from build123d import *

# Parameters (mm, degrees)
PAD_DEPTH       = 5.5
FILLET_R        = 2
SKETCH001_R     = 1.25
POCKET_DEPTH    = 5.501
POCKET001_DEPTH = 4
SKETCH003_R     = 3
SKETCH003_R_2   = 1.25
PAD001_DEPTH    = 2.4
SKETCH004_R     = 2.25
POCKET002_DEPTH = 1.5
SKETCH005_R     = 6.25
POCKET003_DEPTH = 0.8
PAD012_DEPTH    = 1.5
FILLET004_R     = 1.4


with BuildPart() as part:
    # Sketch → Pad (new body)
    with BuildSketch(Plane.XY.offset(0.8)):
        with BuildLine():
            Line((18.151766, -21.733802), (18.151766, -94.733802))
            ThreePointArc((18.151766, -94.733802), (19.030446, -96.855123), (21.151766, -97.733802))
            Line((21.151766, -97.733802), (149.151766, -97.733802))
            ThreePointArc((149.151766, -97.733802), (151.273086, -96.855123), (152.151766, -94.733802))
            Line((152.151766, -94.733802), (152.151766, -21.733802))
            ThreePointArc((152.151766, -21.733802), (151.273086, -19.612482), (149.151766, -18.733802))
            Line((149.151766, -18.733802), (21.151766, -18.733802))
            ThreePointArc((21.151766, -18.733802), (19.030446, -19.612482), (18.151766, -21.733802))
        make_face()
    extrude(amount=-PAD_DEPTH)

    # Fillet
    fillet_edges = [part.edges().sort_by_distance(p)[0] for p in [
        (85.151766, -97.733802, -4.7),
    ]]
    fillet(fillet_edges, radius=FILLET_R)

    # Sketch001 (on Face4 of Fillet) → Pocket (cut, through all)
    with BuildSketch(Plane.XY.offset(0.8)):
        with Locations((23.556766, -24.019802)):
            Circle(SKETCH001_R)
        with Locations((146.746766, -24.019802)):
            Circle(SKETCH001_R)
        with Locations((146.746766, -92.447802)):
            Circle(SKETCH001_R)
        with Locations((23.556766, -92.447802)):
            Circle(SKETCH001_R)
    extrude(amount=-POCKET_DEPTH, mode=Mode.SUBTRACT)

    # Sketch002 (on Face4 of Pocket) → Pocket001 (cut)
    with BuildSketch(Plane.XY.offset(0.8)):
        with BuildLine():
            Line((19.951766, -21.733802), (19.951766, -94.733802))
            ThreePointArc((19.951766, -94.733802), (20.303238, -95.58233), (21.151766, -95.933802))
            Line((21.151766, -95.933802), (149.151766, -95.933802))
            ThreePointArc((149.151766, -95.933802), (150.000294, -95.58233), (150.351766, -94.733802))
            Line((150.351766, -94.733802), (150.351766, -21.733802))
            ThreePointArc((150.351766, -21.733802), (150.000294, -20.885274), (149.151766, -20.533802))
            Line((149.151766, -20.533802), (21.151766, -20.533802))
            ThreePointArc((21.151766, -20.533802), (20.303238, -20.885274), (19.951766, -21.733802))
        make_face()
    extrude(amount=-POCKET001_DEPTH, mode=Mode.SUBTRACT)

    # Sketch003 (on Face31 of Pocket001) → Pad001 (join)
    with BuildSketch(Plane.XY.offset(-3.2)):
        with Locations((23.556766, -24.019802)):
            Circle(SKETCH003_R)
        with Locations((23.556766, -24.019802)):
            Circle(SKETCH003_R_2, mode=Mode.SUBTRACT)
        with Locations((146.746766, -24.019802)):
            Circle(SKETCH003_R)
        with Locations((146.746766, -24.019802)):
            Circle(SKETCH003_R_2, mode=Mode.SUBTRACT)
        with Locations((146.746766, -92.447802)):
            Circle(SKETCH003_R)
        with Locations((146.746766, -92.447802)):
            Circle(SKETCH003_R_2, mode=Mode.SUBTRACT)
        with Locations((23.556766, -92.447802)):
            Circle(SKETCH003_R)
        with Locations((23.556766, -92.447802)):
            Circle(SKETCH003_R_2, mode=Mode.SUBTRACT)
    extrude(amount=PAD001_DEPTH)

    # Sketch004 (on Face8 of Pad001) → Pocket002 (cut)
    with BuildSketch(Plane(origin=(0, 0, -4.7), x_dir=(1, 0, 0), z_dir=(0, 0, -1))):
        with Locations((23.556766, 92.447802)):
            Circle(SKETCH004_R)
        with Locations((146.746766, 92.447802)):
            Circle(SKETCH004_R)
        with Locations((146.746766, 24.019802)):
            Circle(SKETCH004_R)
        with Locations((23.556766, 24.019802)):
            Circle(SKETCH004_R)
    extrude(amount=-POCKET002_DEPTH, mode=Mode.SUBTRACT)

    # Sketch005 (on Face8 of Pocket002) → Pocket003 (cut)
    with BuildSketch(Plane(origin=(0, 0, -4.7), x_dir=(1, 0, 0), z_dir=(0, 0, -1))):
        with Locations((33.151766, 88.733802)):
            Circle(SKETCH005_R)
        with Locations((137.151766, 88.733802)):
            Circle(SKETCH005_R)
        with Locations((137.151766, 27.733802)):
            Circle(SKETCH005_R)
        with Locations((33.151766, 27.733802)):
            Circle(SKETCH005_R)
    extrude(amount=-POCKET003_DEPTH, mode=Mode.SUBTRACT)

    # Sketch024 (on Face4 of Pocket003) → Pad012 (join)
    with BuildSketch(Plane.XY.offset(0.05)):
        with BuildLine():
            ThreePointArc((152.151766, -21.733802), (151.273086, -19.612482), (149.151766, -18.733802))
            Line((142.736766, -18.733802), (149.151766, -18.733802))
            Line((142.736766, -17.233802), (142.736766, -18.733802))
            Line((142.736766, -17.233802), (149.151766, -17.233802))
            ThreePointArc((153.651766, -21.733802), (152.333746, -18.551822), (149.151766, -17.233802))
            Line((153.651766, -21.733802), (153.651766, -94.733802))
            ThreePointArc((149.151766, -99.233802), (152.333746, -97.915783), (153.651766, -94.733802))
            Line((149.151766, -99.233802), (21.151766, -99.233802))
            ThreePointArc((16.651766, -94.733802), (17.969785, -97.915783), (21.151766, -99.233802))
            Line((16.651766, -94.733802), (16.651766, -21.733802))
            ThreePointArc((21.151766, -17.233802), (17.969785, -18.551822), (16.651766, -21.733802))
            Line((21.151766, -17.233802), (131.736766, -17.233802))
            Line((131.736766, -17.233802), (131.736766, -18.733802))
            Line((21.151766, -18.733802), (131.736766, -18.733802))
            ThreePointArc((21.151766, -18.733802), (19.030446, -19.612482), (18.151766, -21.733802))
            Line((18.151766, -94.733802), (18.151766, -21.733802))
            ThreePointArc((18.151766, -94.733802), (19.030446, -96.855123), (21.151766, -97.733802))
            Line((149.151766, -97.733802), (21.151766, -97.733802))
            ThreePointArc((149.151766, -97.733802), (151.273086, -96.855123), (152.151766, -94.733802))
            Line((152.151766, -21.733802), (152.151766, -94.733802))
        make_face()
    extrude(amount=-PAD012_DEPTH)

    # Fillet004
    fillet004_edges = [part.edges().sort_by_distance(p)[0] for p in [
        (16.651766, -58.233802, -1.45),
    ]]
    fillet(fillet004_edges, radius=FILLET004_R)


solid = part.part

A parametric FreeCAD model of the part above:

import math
import FreeCAD as App
import Part
import Sketcher


def edges_at(feature, points):
    """Names of the edges that pass closest to the given points."""
    edges = feature.Shape.Edges
    near = lambda p: min(range(len(edges)), key=lambda i: edges[i].distToShape(Part.Vertex(*p))[0])
    return sorted({f"Edge{near(p) + 1}" for p in points})

doc = App.newDocument("Part")
body = doc.addObject("PartDesign::Body", "Body")

# Sketch on XY plane
sketch1 = body.newObject("Sketcher::SketchObject", "Sketch")
sketch1.AttachmentSupport = (doc.getObject("XY_Plane"), [""])
sketch1.MapMode = "FlatFace"
sketch1.AttachmentOffset = App.Placement(App.Vector(0, 0, 0.8), App.Rotation())
sketch1.addGeometry([
    Part.LineSegment(App.Vector(18.2, -21.7, 0), App.Vector(18.2, -94.7, 0)),  # 0
    Part.ArcOfCircle(Part.Circle(App.Vector(21.2, -94.7, 0), App.Vector(0, 0, 1), 3), math.radians(180), math.radians(270)),  # 1
    Part.LineSegment(App.Vector(21.2, -97.7, 0), App.Vector(149.2, -97.7, 0)),  # 2
    Part.ArcOfCircle(Part.Circle(App.Vector(149.2, -94.7, 0), App.Vector(0, 0, 1), 3), math.radians(-90), math.radians(0)),  # 3
    Part.LineSegment(App.Vector(152.2, -94.7, 0), App.Vector(152.2, -21.7, 0)),  # 4
    Part.ArcOfCircle(Part.Circle(App.Vector(149.2, -21.7, 0), App.Vector(0, 0, 1), 3), math.radians(0), math.radians(90)),  # 5
    Part.LineSegment(App.Vector(149.2, -18.7, 0), App.Vector(21.2, -18.7, 0)),  # 6
    Part.ArcOfCircle(Part.Circle(App.Vector(21.2, -21.7, 0), App.Vector(0, 0, 1), 3), math.radians(90), math.radians(180)),  # 7
], False)
sketch1.addConstraint([
    Sketcher.Constraint("Tangent", 0, 2, 1, 1),
    Sketcher.Constraint("Tangent", 1, 2, 2, 1),
    Sketcher.Constraint("Tangent", 2, 2, 3, 1),
    Sketcher.Constraint("Tangent", 3, 2, 4, 1),
    Sketcher.Constraint("Tangent", 4, 2, 5, 1),
    Sketcher.Constraint("Tangent", 5, 2, 6, 1),
    Sketcher.Constraint("Tangent", 6, 2, 7, 1),
    Sketcher.Constraint("Tangent", 7, 2, 0, 1),
    Sketcher.Constraint("Vertical", 0),
    Sketcher.Constraint("Horizontal", 2),
    Sketcher.Constraint("Vertical", 4),
    Sketcher.Constraint("Horizontal", 6),
    Sketcher.Constraint("Equal", 1, 3),
    Sketcher.Constraint("Equal", 3, 5),
    Sketcher.Constraint("Equal", 5, 7),
    Sketcher.Constraint("Radius", 1, 2.999999),
    Sketcher.Constraint("DistanceX", 2, 1, 2, 2, 128.0),
    Sketcher.Constraint("DistanceY", 0, 2, 0, 1, 73.0),
    Sketcher.Constraint("DistanceY", 0, 2, -1, 1, 94.733802),
    Sketcher.Constraint("DistanceX", -1, 1, 1, 3, 21.151765),
])
pad1 = body.newObject("PartDesign::Pad", "Pad")
pad1.Profile = sketch1
pad1.Length = 5.5
pad1.Reversed = True
doc.recompute()

fillet = body.newObject("PartDesign::Fillet", "Fillet")
fillet.Base = (pad1, edges_at(pad1, [(85.152, -97.734, -4.7)]))
fillet.Radius = 2

# Sketch on XY plane
sketch2 = body.newObject("Sketcher::SketchObject", "Sketch001")
sketch2.AttachmentSupport = (doc.getObject("XY_Plane"), [""])
sketch2.MapMode = "FlatFace"
sketch2.AttachmentOffset = App.Placement(App.Vector(0, 0, 0.8), App.Rotation())
sketch2.addGeometry([
    Part.Circle(App.Vector(23.6, -24, 0), App.Vector(0, 0, 1), 1.2),
    Part.Circle(App.Vector(146.7, -24, 0), App.Vector(0, 0, 1), 1.2),
    Part.Circle(App.Vector(146.7, -92.4, 0), App.Vector(0, 0, 1), 1.2),
    Part.Circle(App.Vector(23.6, -92.4, 0), App.Vector(0, 0, 1), 1.2),
], False)
sketch2.addConstraint([
    Sketcher.Constraint("Equal", 0, 1),
    Sketcher.Constraint("Equal", 1, 2),
    Sketcher.Constraint("Equal", 2, 3),
    Sketcher.Constraint("Horizontal", 0, 3, 1, 3),
    Sketcher.Constraint("Horizontal", 2, 3, 3, 3),
    Sketcher.Constraint("Vertical", 1, 3, 2, 3),
    Sketcher.Constraint("Vertical", 0, 3, 3, 3),
    Sketcher.Constraint("Diameter", 0, 2.5),
    Sketcher.Constraint("DistanceX", 0, 3, 1, 3, 123.19),
    Sketcher.Constraint("DistanceY", 2, 3, 1, 3, 68.428),
    Sketcher.Constraint("DistanceY", 0, 3, -1, 1, 24.019802),
    Sketcher.Constraint("DistanceX", -1, 1, 0, 3, 23.556766),
])
pocket1 = body.newObject("PartDesign::Pocket", "Pocket")
pocket1.Profile = sketch2
pocket1.Type = "ThroughAll"

# Sketch on XY plane
sketch3 = body.newObject("Sketcher::SketchObject", "Sketch002")
sketch3.AttachmentSupport = (doc.getObject("XY_Plane"), [""])
sketch3.MapMode = "FlatFace"
sketch3.AttachmentOffset = App.Placement(App.Vector(0, 0, 0.8), App.Rotation())
sketch3.addGeometry([
    Part.LineSegment(App.Vector(20, -21.7, 0), App.Vector(20, -94.7, 0)),  # 0
    Part.ArcOfCircle(Part.Circle(App.Vector(21.2, -94.7, 0), App.Vector(0, 0, 1), 1.2), math.radians(-180), math.radians(-90)),  # 1
    Part.LineSegment(App.Vector(21.2, -95.9, 0), App.Vector(149.2, -95.9, 0)),  # 2
    Part.ArcOfCircle(Part.Circle(App.Vector(149.2, -94.7, 0), App.Vector(0, 0, 1), 1.2), math.radians(-90), math.radians(0)),  # 3
    Part.LineSegment(App.Vector(150.4, -94.7, 0), App.Vector(150.4, -21.7, 0)),  # 4
    Part.ArcOfCircle(Part.Circle(App.Vector(149.2, -21.7, 0), App.Vector(0, 0, 1), 1.2), math.radians(0), math.radians(90)),  # 5
    Part.LineSegment(App.Vector(149.2, -20.5, 0), App.Vector(21.2, -20.5, 0)),  # 6
    Part.ArcOfCircle(Part.Circle(App.Vector(21.2, -21.7, 0), App.Vector(0, 0, 1), 1.2), math.radians(90), math.radians(180)),  # 7
], False)
sketch3.addConstraint([
    Sketcher.Constraint("Tangent", 0, 2, 1, 1),
    Sketcher.Constraint("Tangent", 1, 2, 2, 1),
    Sketcher.Constraint("Tangent", 2, 2, 3, 1),
    Sketcher.Constraint("Tangent", 3, 2, 4, 1),
    Sketcher.Constraint("Tangent", 4, 2, 5, 1),
    Sketcher.Constraint("Tangent", 5, 2, 6, 1),
    Sketcher.Constraint("Tangent", 6, 2, 7, 1),
    Sketcher.Constraint("Tangent", 7, 2, 0, 1),
    Sketcher.Constraint("Vertical", 0),
    Sketcher.Constraint("Horizontal", 2),
    Sketcher.Constraint("Vertical", 4),
    Sketcher.Constraint("Horizontal", 6),
    Sketcher.Constraint("Equal", 1, 3),
    Sketcher.Constraint("Equal", 3, 5),
    Sketcher.Constraint("Equal", 5, 7),
    Sketcher.Constraint("Radius", 1, 1.2),
    Sketcher.Constraint("DistanceX", 2, 1, 2, 2, 128.0),
    Sketcher.Constraint("DistanceY", 0, 2, 0, 1, 73.0),
    Sketcher.Constraint("DistanceY", 1, 3, -1, 1, 94.733802),
    Sketcher.Constraint("DistanceX", -1, 1, 1, 3, 21.151766),
])
pocket2 = body.newObject("PartDesign::Pocket", "Pocket001")
pocket2.Profile = sketch3
pocket2.Length = 4

# Sketch on XY plane
sketch4 = body.newObject("Sketcher::SketchObject", "Sketch003")
sketch4.AttachmentSupport = (doc.getObject("XY_Plane"), [""])
sketch4.MapMode = "FlatFace"
sketch4.AttachmentOffset = App.Placement(App.Vector(0, 0, -3.2), App.Rotation())
sketch4.addGeometry([
    Part.Circle(App.Vector(23.6, -24, 0), App.Vector(0, 0, 1), 3),  # 0
    Part.Circle(App.Vector(23.6, -24, 0), App.Vector(0, 0, 1), 1.2),  # 1
    Part.Circle(App.Vector(146.7, -24, 0), App.Vector(0, 0, 1), 3),  # 2
    Part.Circle(App.Vector(146.7, -24, 0), App.Vector(0, 0, 1), 1.2),  # 3
    Part.Circle(App.Vector(146.7, -92.4, 0), App.Vector(0, 0, 1), 3),  # 4
    Part.Circle(App.Vector(146.7, -92.4, 0), App.Vector(0, 0, 1), 1.2),  # 5
    Part.Circle(App.Vector(23.6, -92.4, 0), App.Vector(0, 0, 1), 3),  # 6
    Part.Circle(App.Vector(23.6, -92.4, 0), App.Vector(0, 0, 1), 1.2),  # 7
], False)
sketch4.addConstraint([
    Sketcher.Constraint("Coincident", 1, 3, 0, 3),
    Sketcher.Constraint("Coincident", 3, 3, 2, 3),
    Sketcher.Constraint("Coincident", 5, 3, 4, 3),
    Sketcher.Constraint("Coincident", 7, 3, 6, 3),
    Sketcher.Constraint("Equal", 0, 2),
    Sketcher.Constraint("Equal", 1, 3),
    Sketcher.Constraint("Equal", 2, 4),
    Sketcher.Constraint("Equal", 3, 5),
    Sketcher.Constraint("Equal", 4, 6),
    Sketcher.Constraint("Equal", 5, 7),
    Sketcher.Constraint("Horizontal", 1, 3, 2, 3),
    Sketcher.Constraint("Horizontal", 5, 3, 6, 3),
    Sketcher.Constraint("Vertical", 3, 3, 4, 3),
    Sketcher.Constraint("Vertical", 1, 3, 6, 3),
    Sketcher.Constraint("Diameter", 0, 6.0),
    Sketcher.Constraint("Diameter", 1, 2.5),
    Sketcher.Constraint("DistanceX", 0, 3, 2, 3, 123.19),
    Sketcher.Constraint("DistanceY", 4, 3, 2, 3, 68.428),
    Sketcher.Constraint("DistanceY", 0, 3, -1, 1, 24.019802),
    Sketcher.Constraint("DistanceX", -1, 1, 0, 3, 23.556766),
])
pad2 = body.newObject("PartDesign::Pad", "Pad001")
pad2.Profile = sketch4
pad2.Length = 2.4

# Sketch on XY plane
sketch5 = body.newObject("Sketcher::SketchObject", "Sketch004")
sketch5.AttachmentSupport = (doc.getObject("XY_Plane"), [""])
sketch5.MapMode = "FlatFace"
sketch5.AttachmentOffset = App.Placement(App.Vector(0, 0, -4.7), App.Rotation())
sketch5.addGeometry([
    Part.Circle(App.Vector(23.6, -92.4, 0), App.Vector(0, 0, 1), 2.2),
    Part.Circle(App.Vector(146.7, -92.4, 0), App.Vector(0, 0, 1), 2.2),
    Part.Circle(App.Vector(146.7, -24, 0), App.Vector(0, 0, 1), 2.2),
    Part.Circle(App.Vector(23.6, -24, 0), App.Vector(0, 0, 1), 2.2),
], False)
sketch5.addConstraint([
    Sketcher.Constraint("Equal", 0, 1),
    Sketcher.Constraint("Equal", 1, 2),
    Sketcher.Constraint("Equal", 2, 3),
    Sketcher.Constraint("Horizontal", 0, 3, 1, 3),
    Sketcher.Constraint("Horizontal", 2, 3, 3, 3),
    Sketcher.Constraint("Vertical", 1, 3, 2, 3),
    Sketcher.Constraint("Vertical", 0, 3, 3, 3),
    Sketcher.Constraint("Diameter", 0, 4.5),
    Sketcher.Constraint("DistanceX", 0, 3, 1, 3, 123.19),
    Sketcher.Constraint("DistanceY", 1, 3, 2, 3, 68.428),
    Sketcher.Constraint("DistanceY", 0, 3, -1, 1, 92.447802),
    Sketcher.Constraint("DistanceX", -1, 1, 0, 3, 23.556766),
])
pocket3 = body.newObject("PartDesign::Pocket", "Pocket002")
pocket3.Profile = sketch5
pocket3.Length = 1.5
pocket3.Reversed = True

# Sketch on XY plane
sketch6 = body.newObject("Sketcher::SketchObject", "Sketch005")
sketch6.AttachmentSupport = (doc.getObject("XY_Plane"), [""])
sketch6.MapMode = "FlatFace"
sketch6.AttachmentOffset = App.Placement(App.Vector(0, 0, -4.7), App.Rotation())
sketch6.addGeometry([
    Part.Circle(App.Vector(33, -89, 0), App.Vector(0, 0, 1), 6),
    Part.Circle(App.Vector(137, -89, 0), App.Vector(0, 0, 1), 6),
    Part.Circle(App.Vector(137, -28, 0), App.Vector(0, 0, 1), 6),
    Part.Circle(App.Vector(33, -28, 0), App.Vector(0, 0, 1), 6),
], False)
sketch6.addConstraint([
    Sketcher.Constraint("Equal", 0, 1),
    Sketcher.Constraint("Equal", 1, 2),
    Sketcher.Constraint("Equal", 2, 3),
    Sketcher.Constraint("Horizontal", 0, 3, 1, 3),
    Sketcher.Constraint("Horizontal", 2, 3, 3, 3),
    Sketcher.Constraint("Vertical", 1, 3, 2, 3),
    Sketcher.Constraint("Vertical", 0, 3, 3, 3),
    Sketcher.Constraint("Diameter", 0, 12.5),
    Sketcher.Constraint("DistanceX", 0, 3, 1, 3, 104.0),
    Sketcher.Constraint("DistanceY", 1, 3, 2, 3, 61.0),
    Sketcher.Constraint("DistanceY", 0, 3, -1, 1, 88.733802),
    Sketcher.Constraint("DistanceX", -1, 1, 0, 3, 33.151766),
])
pocket4 = body.newObject("PartDesign::Pocket", "Pocket003")
pocket4.Profile = sketch6
pocket4.Length = 0.8
pocket4.Reversed = True

# Sketch on XY plane
sketch7 = body.newObject("Sketcher::SketchObject", "Sketch006")
sketch7.AttachmentSupport = (doc.getObject("XY_Plane"), [""])
sketch7.MapMode = "FlatFace"
sketch7.AttachmentOffset = App.Placement(App.Vector(0, 0, 0.05), App.Rotation())
sketch7.addGeometry([
    Part.ArcOfCircle(Part.Circle(App.Vector(149.2, -21.7, 0), App.Vector(0, 0, 1), 3), math.radians(0), math.radians(90)),  # 0
    Part.LineSegment(App.Vector(152.2, -21.7, 0), App.Vector(152.2, -94.7, 0)),  # 1
    Part.ArcOfCircle(Part.Circle(App.Vector(149.2, -94.7, 0), App.Vector(0, 0, 1), 3), math.radians(-90), math.radians(0)),  # 2
    Part.LineSegment(App.Vector(149.2, -97.7, 0), App.Vector(21.2, -97.7, 0)),  # 3
    Part.ArcOfCircle(Part.Circle(App.Vector(21.2, -94.7, 0), App.Vector(0, 0, 1), 3), math.radians(180), math.radians(270)),  # 4
    Part.LineSegment(App.Vector(18.2, -94.7, 0), App.Vector(18.2, -21.7, 0)),  # 5
    Part.ArcOfCircle(Part.Circle(App.Vector(21.2, -21.7, 0), App.Vector(0, 0, 1), 3), math.radians(90), math.radians(180)),  # 6
    Part.LineSegment(App.Vector(21.2, -18.7, 0), App.Vector(131.7, -18.7, 0)),  # 7
    Part.LineSegment(App.Vector(131.7, -18.7, 0), App.Vector(131.7, -17.2, 0)),  # 8
    Part.LineSegment(App.Vector(131.7, -17.2, 0), App.Vector(21.2, -17.2, 0)),  # 9
    Part.ArcOfCircle(Part.Circle(App.Vector(21.2, -21.7, 0), App.Vector(0, 0, 1), 4.5), math.radians(90), math.radians(180)),  # 10
    Part.LineSegment(App.Vector(16.7, -21.7, 0), App.Vector(16.7, -94.7, 0)),  # 11
    Part.ArcOfCircle(Part.Circle(App.Vector(21.2, -94.7, 0), App.Vector(0, 0, 1), 4.5), math.radians(180), math.radians(270)),  # 12
    Part.LineSegment(App.Vector(21.2, -99.2, 0), App.Vector(149.2, -99.2, 0)),  # 13
    Part.ArcOfCircle(Part.Circle(App.Vector(149.2, -94.7, 0), App.Vector(0, 0, 1), 4.5), math.radians(-90), math.radians(0)),  # 14
    Part.LineSegment(App.Vector(153.7, -94.7, 0), App.Vector(153.7, -21.7, 0)),  # 15
    Part.ArcOfCircle(Part.Circle(App.Vector(149.2, -21.7, 0), App.Vector(0, 0, 1), 4.5), math.radians(0), math.radians(90)),  # 16
    Part.LineSegment(App.Vector(149.2, -17.2, 0), App.Vector(142.7, -17.2, 0)),  # 17
    Part.LineSegment(App.Vector(142.7, -17.2, 0), App.Vector(142.7, -18.7, 0)),  # 18
    Part.LineSegment(App.Vector(142.7, -18.7, 0), App.Vector(149.2, -18.7, 0)),  # 19
], False)
sketch7.addConstraint([
    Sketcher.Constraint("Tangent", 0, 1, 1, 1),
    Sketcher.Constraint("Tangent", 1, 2, 2, 2),
    Sketcher.Constraint("Tangent", 2, 1, 3, 1),
    Sketcher.Constraint("Tangent", 3, 2, 4, 2),
    Sketcher.Constraint("Tangent", 4, 1, 5, 1),
    Sketcher.Constraint("Tangent", 5, 2, 6, 2),
    Sketcher.Constraint("Tangent", 6, 1, 7, 1),
    Sketcher.Constraint("Coincident", 7, 2, 8, 1),
    Sketcher.Constraint("Coincident", 8, 2, 9, 1),
    Sketcher.Constraint("Tangent", 9, 2, 10, 1),
    Sketcher.Constraint("Tangent", 10, 2, 11, 1),
    Sketcher.Constraint("Tangent", 11, 2, 12, 1),
    Sketcher.Constraint("Tangent", 12, 2, 13, 1),
    Sketcher.Constraint("Tangent", 13, 2, 14, 1),
    Sketcher.Constraint("Tangent", 14, 2, 15, 1),
    Sketcher.Constraint("Tangent", 15, 2, 16, 1),
    Sketcher.Constraint("Tangent", 16, 2, 17, 1),
    Sketcher.Constraint("Coincident", 17, 2, 18, 1),
    Sketcher.Constraint("Coincident", 18, 2, 19, 1),
    Sketcher.Constraint("Tangent", 19, 2, 0, 2),
    Sketcher.Constraint("Vertical", 1),
    Sketcher.Constraint("Horizontal", 3),
    Sketcher.Constraint("Vertical", 5),
    Sketcher.Constraint("Horizontal", 7),
    Sketcher.Constraint("Vertical", 8),
    Sketcher.Constraint("Horizontal", 9),
    Sketcher.Constraint("Vertical", 11),
    Sketcher.Constraint("Horizontal", 13),
    Sketcher.Constraint("Vertical", 15),
    Sketcher.Constraint("Horizontal", 17),
    Sketcher.Constraint("Vertical", 18),
    Sketcher.Constraint("Horizontal", 19),
    Sketcher.Constraint("Coincident", 10, 3, 6, 3),
    Sketcher.Constraint("Coincident", 12, 3, 4, 3),
    Sketcher.Constraint("Coincident", 14, 3, 2, 3),
    Sketcher.Constraint("Coincident", 16, 3, 0, 3),
    Sketcher.Constraint("Equal", 0, 2),
    Sketcher.Constraint("Equal", 2, 4),
    Sketcher.Constraint("Equal", 4, 6),
    Sketcher.Constraint("Horizontal", 0, 3, 6, 3),
    Sketcher.Constraint("Radius", 0, 3.000001),
    Sketcher.Constraint("Radius", 10, 4.5),
    Sketcher.Constraint("DistanceX", 3, 2, 3, 1, 128.0),
    Sketcher.Constraint("DistanceY", 1, 2, 1, 1, 73.0),
    Sketcher.Constraint("DistanceX", 8, 2, 17, 2, 11.0),
    Sketcher.Constraint("DistanceX", 7, 1, 7, 2, 110.585),
    Sketcher.Constraint("DistanceY", 14, 3, -1, 1, 94.733802),
    Sketcher.Constraint("DistanceX", -1, 1, 0, 3, 149.151765),
])
pad3 = body.newObject("PartDesign::Pad", "Pad002")
pad3.Profile = sketch7
pad3.Length = 1.5
pad3.Reversed = True
doc.recompute()

fillet2 = body.newObject("PartDesign::Fillet", "Fillet001")
fillet2.Base = (pad3, edges_at(pad3, [(16.652, -58.234, -1.45)]))
fillet2.Radius = 1.4

doc.recompute()
